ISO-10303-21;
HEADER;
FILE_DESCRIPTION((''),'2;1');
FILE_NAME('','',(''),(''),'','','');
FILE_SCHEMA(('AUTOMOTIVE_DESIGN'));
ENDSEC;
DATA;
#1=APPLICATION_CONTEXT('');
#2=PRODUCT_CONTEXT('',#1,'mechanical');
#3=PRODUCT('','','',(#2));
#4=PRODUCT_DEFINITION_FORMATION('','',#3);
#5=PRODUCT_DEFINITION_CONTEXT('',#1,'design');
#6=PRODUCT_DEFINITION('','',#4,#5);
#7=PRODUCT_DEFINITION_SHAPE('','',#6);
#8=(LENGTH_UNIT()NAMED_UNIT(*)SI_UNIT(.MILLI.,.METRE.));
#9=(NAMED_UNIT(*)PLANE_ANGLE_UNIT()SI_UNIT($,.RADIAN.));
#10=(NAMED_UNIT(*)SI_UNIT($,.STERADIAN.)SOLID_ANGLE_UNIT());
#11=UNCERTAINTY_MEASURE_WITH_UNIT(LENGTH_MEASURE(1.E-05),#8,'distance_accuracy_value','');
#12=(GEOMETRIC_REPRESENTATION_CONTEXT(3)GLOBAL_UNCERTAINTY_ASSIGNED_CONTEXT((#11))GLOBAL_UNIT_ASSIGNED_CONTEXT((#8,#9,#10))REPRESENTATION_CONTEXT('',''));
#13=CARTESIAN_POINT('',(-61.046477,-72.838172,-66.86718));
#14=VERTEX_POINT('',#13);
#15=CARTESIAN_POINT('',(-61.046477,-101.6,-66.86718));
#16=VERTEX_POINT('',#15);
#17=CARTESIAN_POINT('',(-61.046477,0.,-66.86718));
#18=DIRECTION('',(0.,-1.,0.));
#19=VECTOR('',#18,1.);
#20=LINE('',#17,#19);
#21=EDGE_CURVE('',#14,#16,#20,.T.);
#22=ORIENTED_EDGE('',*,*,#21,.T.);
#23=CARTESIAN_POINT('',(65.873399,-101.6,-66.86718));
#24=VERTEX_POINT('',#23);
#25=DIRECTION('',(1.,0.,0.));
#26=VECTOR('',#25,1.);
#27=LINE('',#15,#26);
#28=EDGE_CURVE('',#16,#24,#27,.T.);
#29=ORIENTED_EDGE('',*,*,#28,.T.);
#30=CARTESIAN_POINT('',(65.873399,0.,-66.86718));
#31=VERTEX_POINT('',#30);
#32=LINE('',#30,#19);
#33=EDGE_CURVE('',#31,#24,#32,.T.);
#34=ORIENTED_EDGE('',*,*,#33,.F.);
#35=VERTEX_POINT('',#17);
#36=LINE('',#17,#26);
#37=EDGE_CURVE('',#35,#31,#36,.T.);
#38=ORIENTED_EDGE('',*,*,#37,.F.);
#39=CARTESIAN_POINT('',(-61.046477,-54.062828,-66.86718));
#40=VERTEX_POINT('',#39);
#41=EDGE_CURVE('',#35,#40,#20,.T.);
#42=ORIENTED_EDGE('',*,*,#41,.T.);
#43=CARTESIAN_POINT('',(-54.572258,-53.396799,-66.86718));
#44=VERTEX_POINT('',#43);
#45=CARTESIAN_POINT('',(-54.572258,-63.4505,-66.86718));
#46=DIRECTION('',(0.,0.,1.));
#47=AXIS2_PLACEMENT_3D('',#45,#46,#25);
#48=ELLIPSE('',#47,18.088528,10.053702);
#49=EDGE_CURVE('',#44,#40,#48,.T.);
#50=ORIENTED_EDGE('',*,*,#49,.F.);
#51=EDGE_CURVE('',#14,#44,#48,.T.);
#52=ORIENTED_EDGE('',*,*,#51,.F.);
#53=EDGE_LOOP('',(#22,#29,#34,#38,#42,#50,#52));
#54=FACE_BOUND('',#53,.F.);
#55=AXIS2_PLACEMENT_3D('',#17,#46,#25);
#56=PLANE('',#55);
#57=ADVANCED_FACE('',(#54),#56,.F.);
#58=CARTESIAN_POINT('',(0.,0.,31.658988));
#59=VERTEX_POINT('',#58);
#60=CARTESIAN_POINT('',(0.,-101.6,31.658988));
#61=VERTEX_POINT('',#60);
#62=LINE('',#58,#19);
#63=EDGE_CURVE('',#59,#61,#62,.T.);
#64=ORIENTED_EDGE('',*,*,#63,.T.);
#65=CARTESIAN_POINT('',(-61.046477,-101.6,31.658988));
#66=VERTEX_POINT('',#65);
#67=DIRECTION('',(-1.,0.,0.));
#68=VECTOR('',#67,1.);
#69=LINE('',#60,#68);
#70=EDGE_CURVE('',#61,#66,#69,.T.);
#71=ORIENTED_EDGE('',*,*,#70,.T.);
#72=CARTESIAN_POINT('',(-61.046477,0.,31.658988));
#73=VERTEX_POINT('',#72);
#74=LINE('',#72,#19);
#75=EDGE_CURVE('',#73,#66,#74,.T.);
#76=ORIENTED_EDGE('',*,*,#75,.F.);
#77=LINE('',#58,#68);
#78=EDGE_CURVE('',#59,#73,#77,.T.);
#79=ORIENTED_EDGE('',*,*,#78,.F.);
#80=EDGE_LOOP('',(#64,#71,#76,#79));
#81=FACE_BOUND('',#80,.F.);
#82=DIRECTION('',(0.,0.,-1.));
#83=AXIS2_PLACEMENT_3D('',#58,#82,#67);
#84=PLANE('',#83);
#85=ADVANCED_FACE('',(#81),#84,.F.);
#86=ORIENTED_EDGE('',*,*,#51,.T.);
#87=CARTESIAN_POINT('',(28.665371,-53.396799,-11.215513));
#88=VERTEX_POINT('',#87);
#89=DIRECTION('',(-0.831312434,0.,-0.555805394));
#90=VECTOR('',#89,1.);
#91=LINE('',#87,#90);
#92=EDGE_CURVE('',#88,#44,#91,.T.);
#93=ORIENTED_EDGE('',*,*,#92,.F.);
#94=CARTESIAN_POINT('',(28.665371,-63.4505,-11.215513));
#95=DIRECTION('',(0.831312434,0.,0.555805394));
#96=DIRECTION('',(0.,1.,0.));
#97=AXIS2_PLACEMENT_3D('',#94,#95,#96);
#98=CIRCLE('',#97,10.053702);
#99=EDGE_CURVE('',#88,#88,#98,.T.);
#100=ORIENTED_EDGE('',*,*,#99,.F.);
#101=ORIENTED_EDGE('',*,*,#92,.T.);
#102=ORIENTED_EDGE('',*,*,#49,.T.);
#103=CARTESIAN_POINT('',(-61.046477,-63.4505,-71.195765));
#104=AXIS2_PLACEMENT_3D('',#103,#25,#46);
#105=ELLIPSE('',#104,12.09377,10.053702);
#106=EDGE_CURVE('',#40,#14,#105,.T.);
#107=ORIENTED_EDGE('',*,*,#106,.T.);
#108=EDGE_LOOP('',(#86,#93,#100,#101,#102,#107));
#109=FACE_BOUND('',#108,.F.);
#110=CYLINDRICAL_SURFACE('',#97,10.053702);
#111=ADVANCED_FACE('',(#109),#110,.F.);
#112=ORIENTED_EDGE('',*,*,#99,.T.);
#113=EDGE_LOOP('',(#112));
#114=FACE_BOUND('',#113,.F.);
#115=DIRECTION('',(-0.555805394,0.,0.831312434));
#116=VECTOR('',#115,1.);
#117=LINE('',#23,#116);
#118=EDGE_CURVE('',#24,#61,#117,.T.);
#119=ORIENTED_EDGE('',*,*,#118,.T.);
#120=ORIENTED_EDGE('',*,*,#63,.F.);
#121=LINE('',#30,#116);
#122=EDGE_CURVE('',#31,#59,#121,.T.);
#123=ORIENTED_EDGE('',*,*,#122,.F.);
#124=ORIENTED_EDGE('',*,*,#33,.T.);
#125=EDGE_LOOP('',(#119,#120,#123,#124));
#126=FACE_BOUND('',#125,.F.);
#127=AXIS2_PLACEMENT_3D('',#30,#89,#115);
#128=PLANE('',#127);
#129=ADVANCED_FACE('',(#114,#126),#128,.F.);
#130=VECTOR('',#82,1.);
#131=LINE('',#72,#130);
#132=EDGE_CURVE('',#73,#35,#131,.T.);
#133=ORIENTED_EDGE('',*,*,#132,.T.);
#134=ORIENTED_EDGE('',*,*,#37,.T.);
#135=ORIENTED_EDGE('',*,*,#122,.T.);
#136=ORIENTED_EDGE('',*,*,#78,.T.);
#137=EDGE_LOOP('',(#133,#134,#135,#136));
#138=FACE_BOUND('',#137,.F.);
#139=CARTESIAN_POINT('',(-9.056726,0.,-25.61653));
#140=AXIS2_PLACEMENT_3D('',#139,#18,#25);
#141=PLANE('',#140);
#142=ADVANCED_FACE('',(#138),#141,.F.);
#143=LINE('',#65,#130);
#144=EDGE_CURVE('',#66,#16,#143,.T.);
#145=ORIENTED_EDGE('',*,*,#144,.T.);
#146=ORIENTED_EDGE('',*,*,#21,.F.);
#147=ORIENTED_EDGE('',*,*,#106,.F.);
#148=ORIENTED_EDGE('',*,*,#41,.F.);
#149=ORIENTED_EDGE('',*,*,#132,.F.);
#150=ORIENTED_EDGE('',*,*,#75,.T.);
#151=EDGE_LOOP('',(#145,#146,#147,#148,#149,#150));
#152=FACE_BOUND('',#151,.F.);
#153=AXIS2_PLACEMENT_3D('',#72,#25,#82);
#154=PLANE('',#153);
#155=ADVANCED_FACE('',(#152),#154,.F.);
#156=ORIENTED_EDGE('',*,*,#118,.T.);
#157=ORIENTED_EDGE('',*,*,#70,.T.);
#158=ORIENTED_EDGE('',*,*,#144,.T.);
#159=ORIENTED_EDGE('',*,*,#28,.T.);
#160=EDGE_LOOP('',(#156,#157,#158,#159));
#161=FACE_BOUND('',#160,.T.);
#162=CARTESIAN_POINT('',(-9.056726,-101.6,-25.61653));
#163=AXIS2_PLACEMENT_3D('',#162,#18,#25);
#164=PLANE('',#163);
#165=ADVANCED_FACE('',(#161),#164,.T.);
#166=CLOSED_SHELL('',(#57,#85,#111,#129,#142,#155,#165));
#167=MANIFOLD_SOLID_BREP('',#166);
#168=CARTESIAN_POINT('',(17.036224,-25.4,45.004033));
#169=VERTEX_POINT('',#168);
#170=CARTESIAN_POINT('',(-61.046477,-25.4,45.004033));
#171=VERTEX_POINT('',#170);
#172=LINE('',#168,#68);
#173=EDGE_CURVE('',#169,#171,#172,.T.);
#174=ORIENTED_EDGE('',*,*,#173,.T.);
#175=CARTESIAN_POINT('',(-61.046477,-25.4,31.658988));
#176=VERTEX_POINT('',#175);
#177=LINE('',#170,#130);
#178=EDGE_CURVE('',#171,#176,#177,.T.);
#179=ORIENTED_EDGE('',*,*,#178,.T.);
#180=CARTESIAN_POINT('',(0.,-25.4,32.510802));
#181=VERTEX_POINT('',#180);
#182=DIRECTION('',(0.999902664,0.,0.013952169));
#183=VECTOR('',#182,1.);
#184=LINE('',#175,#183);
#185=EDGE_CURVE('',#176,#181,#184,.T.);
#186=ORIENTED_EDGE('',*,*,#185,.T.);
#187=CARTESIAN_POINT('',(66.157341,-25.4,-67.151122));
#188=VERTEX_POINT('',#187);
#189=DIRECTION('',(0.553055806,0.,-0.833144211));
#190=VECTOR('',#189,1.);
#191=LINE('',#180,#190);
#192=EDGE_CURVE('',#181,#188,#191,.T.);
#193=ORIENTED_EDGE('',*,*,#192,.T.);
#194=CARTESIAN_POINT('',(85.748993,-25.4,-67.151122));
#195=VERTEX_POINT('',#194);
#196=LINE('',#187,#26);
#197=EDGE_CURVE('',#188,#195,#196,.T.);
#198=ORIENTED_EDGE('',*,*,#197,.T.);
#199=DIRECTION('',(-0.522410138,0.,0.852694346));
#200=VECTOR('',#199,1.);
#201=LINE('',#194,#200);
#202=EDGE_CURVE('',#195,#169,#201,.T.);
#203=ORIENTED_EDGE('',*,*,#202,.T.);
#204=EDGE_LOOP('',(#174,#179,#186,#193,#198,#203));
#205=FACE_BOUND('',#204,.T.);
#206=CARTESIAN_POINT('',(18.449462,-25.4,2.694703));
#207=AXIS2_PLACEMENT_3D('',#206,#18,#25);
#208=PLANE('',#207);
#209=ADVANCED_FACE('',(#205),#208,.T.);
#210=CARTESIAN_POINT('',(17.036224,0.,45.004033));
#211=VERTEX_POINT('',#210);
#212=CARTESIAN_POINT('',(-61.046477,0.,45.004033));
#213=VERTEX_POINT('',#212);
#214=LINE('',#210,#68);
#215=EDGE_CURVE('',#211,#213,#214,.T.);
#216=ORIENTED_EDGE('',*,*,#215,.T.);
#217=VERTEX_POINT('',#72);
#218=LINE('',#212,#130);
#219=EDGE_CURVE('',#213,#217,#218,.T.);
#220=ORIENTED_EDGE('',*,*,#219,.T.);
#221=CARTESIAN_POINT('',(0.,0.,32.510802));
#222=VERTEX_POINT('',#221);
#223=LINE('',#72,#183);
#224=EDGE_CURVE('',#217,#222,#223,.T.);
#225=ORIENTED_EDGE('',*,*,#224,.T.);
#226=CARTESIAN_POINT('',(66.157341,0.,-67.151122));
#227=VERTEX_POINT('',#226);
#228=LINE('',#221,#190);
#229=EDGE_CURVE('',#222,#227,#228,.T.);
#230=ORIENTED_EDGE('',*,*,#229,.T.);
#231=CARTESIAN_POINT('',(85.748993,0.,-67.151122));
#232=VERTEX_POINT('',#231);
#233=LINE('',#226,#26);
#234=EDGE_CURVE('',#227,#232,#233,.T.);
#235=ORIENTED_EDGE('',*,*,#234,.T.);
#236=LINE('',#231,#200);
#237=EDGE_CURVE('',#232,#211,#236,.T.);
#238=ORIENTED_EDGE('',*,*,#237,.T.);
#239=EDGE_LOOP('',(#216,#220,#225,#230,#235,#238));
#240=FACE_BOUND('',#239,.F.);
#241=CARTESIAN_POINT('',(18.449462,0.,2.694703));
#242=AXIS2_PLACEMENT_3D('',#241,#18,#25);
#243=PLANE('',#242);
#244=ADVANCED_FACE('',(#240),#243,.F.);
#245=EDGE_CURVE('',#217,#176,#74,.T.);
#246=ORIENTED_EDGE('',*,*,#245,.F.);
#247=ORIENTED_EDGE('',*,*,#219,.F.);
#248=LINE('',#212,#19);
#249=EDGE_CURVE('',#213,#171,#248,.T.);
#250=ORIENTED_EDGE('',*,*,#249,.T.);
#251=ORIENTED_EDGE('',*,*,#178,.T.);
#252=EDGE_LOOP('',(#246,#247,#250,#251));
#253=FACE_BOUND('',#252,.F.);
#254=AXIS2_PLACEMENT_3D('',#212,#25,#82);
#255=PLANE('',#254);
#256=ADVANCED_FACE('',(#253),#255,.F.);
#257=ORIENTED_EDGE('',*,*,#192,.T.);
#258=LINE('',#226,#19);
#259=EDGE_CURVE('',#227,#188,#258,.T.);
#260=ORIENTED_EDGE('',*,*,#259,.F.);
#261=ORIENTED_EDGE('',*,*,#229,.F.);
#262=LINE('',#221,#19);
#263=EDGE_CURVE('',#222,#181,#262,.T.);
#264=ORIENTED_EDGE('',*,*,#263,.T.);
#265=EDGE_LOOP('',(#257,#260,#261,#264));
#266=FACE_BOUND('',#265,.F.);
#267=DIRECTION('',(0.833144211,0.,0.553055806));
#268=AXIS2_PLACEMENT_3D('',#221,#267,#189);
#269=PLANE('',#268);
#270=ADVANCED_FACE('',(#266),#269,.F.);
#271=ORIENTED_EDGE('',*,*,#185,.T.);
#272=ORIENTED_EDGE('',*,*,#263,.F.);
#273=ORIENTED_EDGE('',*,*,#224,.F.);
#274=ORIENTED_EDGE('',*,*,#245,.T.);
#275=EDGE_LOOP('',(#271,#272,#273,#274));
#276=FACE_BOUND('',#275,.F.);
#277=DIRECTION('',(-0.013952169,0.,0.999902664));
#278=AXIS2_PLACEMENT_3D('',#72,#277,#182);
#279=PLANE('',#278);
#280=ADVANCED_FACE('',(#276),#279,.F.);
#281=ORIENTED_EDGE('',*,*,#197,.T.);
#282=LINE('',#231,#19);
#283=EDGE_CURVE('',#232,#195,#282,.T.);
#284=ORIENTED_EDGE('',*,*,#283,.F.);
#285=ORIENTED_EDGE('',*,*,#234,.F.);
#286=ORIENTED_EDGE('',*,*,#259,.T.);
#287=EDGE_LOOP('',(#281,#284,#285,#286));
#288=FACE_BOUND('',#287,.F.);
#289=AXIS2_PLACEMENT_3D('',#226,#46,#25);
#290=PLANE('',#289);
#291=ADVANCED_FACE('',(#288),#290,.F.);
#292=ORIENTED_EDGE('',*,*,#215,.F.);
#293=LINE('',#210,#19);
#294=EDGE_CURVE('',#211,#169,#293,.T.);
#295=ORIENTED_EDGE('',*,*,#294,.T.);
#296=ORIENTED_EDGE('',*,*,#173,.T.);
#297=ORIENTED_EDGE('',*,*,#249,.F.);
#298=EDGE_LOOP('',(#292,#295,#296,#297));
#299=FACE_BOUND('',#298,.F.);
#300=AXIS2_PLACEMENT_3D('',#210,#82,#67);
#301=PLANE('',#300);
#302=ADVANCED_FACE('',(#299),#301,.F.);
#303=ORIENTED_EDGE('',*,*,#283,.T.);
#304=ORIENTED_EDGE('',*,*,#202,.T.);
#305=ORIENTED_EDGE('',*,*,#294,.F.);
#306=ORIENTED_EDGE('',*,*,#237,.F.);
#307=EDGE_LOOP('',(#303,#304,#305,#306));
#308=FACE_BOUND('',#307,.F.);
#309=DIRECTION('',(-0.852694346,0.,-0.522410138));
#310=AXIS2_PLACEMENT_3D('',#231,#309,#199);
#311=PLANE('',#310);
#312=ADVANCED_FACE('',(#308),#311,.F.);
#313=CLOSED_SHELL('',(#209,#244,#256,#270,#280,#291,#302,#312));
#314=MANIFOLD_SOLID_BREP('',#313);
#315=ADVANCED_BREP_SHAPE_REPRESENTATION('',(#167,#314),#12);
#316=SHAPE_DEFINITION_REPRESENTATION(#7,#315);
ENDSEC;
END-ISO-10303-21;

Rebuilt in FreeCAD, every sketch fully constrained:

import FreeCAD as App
import Part
import Sketcher

V = App.Vector
Q = App.Units.Quantity


def add_polygon(sketch, points):
    """Adds a closed chain of lines whose ends are joined by coincident constraints."""
    first, n = sketch.GeometryCount, len(points)
    for a, b in zip(points, points[1:] + points[:1]):
        sketch.addGeometry(Part.LineSegment(App.Vector(*a, 0), App.Vector(*b, 0)), False)
    for i in range(n):
        sketch.addConstraint(Sketcher.Constraint("Coincident", first + i, 2, first + (i + 1) % n, 1))

doc = App.newDocument("Part")
body = doc.addObject("PartDesign::Body", "Body")

# Sketch on XZ plane
sketch1 = body.newObject("Sketcher::SketchObject", "Sketch")
sketch1.AttachmentSupport = (doc.getObject("XZ_Plane"), [""])
sketch1.MapMode = "FlatFace"
add_polygon(sketch1, [(0, 32), (-61, 32), (-61, -67), (66, -67)])  # lines 0-3
sketch1.addConstraint(Sketcher.Constraint("Horizontal", 0))
sketch1.addConstraint(Sketcher.Constraint("Vertical", 1))
sketch1.addConstraint(Sketcher.Constraint("Horizontal", 2))
sketch1.addConstraint(Sketcher.Constraint("PointOnObject", 3, 2, -2))
sketch1.addConstraint(Sketcher.Constraint("DistanceY", 1, 2, 1, 1, Q("98.526169 mm")))
sketch1.addConstraint(Sketcher.Constraint("DistanceX", -1, 1, 2, 2, Q("65.873399 mm")))
sketch1.addConstraint(Sketcher.Constraint("DistanceX", 0, 2, 0, 1, Q("61.046477 mm")))
sketch1.addConstraint(Sketcher.Constraint("DistanceY", -1, 1, 0, 2, Q("31.658988 mm")))
pad1 = body.newObject("PartDesign::Pad", "Pad")
pad1.Profile = sketch1
pad1.Length = Q("4 in")

# Sketch on an angled plane
sketch2 = body.newObject("Sketcher::SketchObject", "Sketch001")
sketch2.Placement = App.Placement(V(14.62797, 0, 9.780083), App.Rotation(V(0, 1, 0), V(-0.555805394, 0, 0.831312434), V(0.831312434, 0, 0.555805394), "ZXY"))
sketch2.addGeometry(Part.Circle(V(-63, -25, 0), V(0, 0, 1), 10), False)
sketch2.addConstraint(Sketcher.Constraint("Diameter", 0, Q("20.107403 mm")))
sketch2.addConstraint(Sketcher.Constraint("DistanceX", 0, 3, -1, 1, Q("63.4505 mm")))
sketch2.addConstraint(Sketcher.Constraint("DistanceY", 0, 3, -1, 1, Q("25.255963 mm")))
pocket1 = body.newObject("PartDesign::Pocket", "Pocket")
pocket1.Profile = sketch2
pocket1.Type = "ThroughAll"
body2 = doc.addObject("PartDesign::Body", "Body001")

# Sketch on XZ plane
sketch3 = body2.newObject("Sketcher::SketchObject", "Sketch002")
sketch3.AttachmentSupport = (doc.getObject("XZ_Plane001"), [""])
sketch3.MapMode = "FlatFace"
add_polygon(sketch3, [(-61.046477, 45.004033), (-61.046477, 31.658988), (0, 32.510802), (66.157341, -67.151122), (85.748993, -67.151122), (17.036224, 45.004033)])  # lines 0-5
sketch3.addConstraint(Sketcher.Constraint("Vertical", 0))
sketch3.addConstraint(Sketcher.Constraint("Horizontal", 3))
sketch3.addConstraint(Sketcher.Constraint("Horizontal", 5))
sketch3.addConstraint(Sketcher.Constraint("PointOnObject", 1, 2, -2))
sketch3.addConstraint(Sketcher.Constraint("DistanceX", 5, 2, 5, 1, Q("78.082701 mm")))
sketch3.addConstraint(Sketcher.Constraint("DistanceX", 3, 1, 3, 2, Q("19.591652 mm")))
sketch3.addConstraint(Sketcher.Constraint("Distance", 1, Q("61.05242 mm")))
sketch3.addConstraint(Sketcher.Constraint("DistanceY", 0, 2, 0, 1, Q("13.345044 mm")))
sketch3.addConstraint(Sketcher.Constraint("DistanceY", -1, 1, 0, 2, Q("31.658988 mm")))
sketch3.addConstraint(Sketcher.Constraint("DistanceX", -1, 1, 2, 2, Q("66.157341 mm")))
sketch3.addConstraint(Sketcher.Constraint("DistanceY", 2, 2, -1, 1, Q("67.151122 mm")))
sketch3.addConstraint(Sketcher.Constraint("DistanceX", 0, 2, 2, 2, Q("127.203818 mm")))
pad2 = body2.newObject("PartDesign::Pad", "Pad001")
pad2.Profile = sketch3
pad2.Length = Q("1 in")

doc.recompute()
